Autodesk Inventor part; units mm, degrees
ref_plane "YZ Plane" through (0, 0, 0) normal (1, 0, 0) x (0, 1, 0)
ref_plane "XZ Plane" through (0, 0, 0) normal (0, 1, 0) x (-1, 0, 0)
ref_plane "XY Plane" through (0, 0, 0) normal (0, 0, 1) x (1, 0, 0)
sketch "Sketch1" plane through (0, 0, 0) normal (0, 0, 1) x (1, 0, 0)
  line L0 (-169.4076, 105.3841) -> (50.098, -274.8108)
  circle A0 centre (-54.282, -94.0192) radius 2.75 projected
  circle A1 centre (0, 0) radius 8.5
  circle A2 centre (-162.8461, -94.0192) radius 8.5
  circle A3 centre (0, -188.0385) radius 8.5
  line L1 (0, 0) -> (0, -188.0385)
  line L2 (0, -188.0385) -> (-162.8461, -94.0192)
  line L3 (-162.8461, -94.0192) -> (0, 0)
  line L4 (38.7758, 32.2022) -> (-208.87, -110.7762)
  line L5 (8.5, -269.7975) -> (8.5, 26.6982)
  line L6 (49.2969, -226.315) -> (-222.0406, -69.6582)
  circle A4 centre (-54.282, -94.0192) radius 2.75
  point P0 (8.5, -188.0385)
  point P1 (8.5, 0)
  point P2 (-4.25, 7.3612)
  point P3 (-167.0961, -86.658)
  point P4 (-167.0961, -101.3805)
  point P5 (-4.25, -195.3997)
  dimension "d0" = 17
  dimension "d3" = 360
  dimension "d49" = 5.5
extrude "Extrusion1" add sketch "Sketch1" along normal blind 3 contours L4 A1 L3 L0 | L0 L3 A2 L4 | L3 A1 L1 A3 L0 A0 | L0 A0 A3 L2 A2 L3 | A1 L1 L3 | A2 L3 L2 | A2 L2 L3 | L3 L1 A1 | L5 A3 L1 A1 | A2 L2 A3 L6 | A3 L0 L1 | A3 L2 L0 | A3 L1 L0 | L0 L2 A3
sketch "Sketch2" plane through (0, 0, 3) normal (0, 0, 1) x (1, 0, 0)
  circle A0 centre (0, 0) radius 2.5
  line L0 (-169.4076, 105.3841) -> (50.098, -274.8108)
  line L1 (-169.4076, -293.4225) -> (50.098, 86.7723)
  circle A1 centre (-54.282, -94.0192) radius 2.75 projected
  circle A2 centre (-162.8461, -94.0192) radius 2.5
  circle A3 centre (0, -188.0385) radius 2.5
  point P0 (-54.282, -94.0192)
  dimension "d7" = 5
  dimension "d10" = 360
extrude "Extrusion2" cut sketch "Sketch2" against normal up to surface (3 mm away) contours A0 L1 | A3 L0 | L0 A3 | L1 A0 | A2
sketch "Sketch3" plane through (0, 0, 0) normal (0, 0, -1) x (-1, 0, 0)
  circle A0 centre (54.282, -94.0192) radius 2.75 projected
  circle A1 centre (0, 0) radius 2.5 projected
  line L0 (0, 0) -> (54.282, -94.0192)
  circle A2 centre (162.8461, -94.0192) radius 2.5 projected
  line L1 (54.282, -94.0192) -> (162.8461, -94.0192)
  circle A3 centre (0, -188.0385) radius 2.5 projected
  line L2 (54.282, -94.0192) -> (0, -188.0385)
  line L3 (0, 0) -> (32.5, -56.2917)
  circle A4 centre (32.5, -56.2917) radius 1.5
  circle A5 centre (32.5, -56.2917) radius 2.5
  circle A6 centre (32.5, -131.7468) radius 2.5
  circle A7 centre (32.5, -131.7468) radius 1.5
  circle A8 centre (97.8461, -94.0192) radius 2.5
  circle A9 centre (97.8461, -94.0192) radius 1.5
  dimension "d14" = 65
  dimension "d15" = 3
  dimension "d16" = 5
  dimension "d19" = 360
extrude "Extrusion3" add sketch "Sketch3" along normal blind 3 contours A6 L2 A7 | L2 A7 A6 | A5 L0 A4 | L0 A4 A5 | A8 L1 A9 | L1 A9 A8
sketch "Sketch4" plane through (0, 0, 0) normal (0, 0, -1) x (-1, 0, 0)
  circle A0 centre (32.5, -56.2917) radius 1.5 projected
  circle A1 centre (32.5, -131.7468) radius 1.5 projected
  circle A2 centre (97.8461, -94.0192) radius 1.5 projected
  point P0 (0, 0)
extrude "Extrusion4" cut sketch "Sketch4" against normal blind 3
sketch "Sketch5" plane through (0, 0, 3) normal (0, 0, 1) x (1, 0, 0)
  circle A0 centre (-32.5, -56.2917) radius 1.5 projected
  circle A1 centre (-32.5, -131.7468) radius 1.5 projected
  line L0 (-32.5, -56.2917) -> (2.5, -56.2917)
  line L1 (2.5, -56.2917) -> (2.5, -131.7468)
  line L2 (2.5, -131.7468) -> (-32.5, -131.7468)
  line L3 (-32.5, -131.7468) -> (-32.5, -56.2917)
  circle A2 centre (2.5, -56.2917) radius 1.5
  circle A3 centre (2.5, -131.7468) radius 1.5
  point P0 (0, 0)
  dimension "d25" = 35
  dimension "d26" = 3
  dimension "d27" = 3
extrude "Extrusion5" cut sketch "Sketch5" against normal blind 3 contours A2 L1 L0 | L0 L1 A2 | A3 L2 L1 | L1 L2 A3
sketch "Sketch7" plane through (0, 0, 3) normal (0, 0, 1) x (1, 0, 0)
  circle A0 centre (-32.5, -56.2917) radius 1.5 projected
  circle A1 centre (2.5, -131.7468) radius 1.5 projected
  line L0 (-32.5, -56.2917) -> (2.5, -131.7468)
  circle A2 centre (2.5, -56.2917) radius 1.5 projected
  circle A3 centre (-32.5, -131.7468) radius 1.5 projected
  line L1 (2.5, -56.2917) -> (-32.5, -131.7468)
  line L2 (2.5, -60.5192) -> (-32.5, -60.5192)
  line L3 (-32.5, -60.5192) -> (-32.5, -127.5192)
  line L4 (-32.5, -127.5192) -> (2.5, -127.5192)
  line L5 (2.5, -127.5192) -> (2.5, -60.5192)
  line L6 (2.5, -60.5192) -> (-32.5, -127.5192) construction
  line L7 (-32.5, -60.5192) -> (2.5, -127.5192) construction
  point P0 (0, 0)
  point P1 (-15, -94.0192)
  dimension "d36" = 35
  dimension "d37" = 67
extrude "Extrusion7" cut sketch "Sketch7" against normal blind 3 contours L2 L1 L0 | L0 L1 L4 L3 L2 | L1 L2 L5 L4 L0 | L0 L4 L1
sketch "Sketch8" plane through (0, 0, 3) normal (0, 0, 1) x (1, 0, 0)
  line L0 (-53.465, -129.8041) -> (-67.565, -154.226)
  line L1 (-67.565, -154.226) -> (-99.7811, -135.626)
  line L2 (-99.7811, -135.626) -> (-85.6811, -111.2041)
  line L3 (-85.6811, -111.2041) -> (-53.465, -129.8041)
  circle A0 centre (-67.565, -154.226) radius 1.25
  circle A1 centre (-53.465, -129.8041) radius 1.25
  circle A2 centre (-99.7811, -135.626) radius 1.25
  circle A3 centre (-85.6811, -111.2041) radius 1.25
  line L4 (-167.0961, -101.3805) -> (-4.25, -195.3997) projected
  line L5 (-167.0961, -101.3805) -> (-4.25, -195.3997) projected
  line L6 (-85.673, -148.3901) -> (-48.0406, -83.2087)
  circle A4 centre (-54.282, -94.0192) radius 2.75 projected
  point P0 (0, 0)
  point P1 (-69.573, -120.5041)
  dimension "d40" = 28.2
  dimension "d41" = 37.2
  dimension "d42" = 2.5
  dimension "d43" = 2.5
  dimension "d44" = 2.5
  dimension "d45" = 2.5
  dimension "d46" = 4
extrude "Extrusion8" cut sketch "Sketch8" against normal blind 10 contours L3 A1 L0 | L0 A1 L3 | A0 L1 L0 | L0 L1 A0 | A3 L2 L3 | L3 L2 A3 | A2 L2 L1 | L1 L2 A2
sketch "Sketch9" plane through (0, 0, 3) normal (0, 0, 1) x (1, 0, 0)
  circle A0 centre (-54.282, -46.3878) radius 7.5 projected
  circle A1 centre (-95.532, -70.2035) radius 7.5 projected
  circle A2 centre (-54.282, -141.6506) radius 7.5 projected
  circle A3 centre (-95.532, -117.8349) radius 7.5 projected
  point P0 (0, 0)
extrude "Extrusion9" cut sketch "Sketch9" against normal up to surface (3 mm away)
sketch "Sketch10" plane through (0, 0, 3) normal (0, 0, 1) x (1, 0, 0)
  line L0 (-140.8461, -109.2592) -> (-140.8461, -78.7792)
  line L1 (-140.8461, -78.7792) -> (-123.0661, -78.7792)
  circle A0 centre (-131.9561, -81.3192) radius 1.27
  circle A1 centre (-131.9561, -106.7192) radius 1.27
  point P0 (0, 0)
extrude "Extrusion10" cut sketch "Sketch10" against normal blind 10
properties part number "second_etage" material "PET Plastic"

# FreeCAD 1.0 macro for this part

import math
import FreeCAD as App
import Part
import Sketcher
Q = App.Units.Quantity


def add_polygon(sketch, points):
    """Adds a closed chain of lines whose ends are joined by coincident constraints."""
    first, n = sketch.GeometryCount, len(points)
    for a, b in zip(points, points[1:] + points[:1]):
        sketch.addGeometry(Part.LineSegment(App.Vector(*a, 0), App.Vector(*b, 0)), False)
    for i in range(n):
        sketch.addConstraint(Sketcher.Constraint("Coincident", first + i, 2, first + (i + 1) % n, 1))

doc = App.newDocument("Part")
params = doc.addObject("Spreadsheet::Sheet", "Params")
for row, (alias, value) in enumerate([
    ("sketch1_diameter", "5.5 mm"),
    ("sketch1_radius", "8.5 mm"),
    ("pad1_length", "3 mm"),
    ("sketch2_diameter", "5 mm"),
    ("pocket1_length", "3 mm"),
    ("sketch3_diameter", "5 mm"),
    ("sketch3_diameter2", "3 mm"),
    ("pad2_length", "3 mm"),
    ("sketch4_diameter", "3 mm"),
    ("pocket2_length", "3 mm"),
    ("sketch5_diameter", "3 mm"),
    ("pocket3_length", "3 mm"),
    ("sketch6_width", "35 mm"),
    ("sketch6_height", "67 mm"),
    ("pocket4_length", "3 mm"),
    ("sketch7_diameter", "2.5 mm"),
    ("pocket5_length", "10 mm"),
    ("sketch8_diameter", "15 mm"),
    ("pocket6_length", "3 mm"),
    ("sketch9_diameter", "2.54 mm"),
    ("pocket7_length", "10 mm"),
], start=1):
    params.set(f"A{row}", alias)
    params.set(f"B{row}", "=" + value)
    params.setAlias(f"B{row}", alias)

body = doc.addObject("PartDesign::Body", "Body")

sketch1 = body.newObject("Sketcher::SketchObject", "Sketch")
sketch1.AttachmentSupport = (doc.getObject("XY_Plane"), [""])
sketch1.MapMode = "FlatFace"
sketch1.addGeometry(Part.LineSegment(App.Vector(-4.250005, 7.361224, 0), App.Vector(-167.096092, -86.657999, 0)), False)
sketch1.addGeometry(Part.ArcOfCircle(Part.Circle(App.Vector(-162.8461, -94.0192, 0), App.Vector(0, 0, 1), 8.5), math.radians(120.000005), math.radians(239.999995)), False)
sketch1.addGeometry(Part.LineSegment(App.Vector(-167.096105, -101.380423, 0), App.Vector(-4.249984, -195.399688, 0)), False)
sketch1.addGeometry(Part.ArcOfCircle(Part.Circle(App.Vector(0, -188.0385, 0), App.Vector(0, 0, 1), 8.5), math.radians(-120.000003), math.radians(0)), False)
sketch1.addGeometry(Part.LineSegment(App.Vector(8.5, -188.0385, 0), App.Vector(8.5, 0, 0)), False)
sketch1.addGeometry(Part.ArcOfCircle(Part.Circle(App.Vector(0, 0, 0), App.Vector(0, 0, 1), 8.5), math.radians(0), math.radians(120.000005)), False)
sketch1.addGeometry(Part.Circle(App.Vector(-54.282, -94.0192, 0), App.Vector(0, 0, 1), 2.75), False)
sketch1.addConstraint(Sketcher.Constraint("Tangent", 0, 2, 1, 1))
sketch1.addConstraint(Sketcher.Constraint("Tangent", 1, 2, 2, 1))
sketch1.addConstraint(Sketcher.Constraint("Tangent", 2, 2, 3, 1))
sketch1.addConstraint(Sketcher.Constraint("Tangent", 3, 2, 4, 1))
sketch1.addConstraint(Sketcher.Constraint("Tangent", 4, 2, 5, 1))
sketch1.addConstraint(Sketcher.Constraint("Tangent", 5, 2, 0, 1))
sketch1.addConstraint(Sketcher.Constraint("Vertical", 4))
sketch1.addConstraint(Sketcher.Constraint("Coincident", 5, 3, -1, 1))
sketch1.addConstraint(Sketcher.Constraint("Equal", 1, 3))
sketch1.addConstraint(Sketcher.Constraint("Equal", 3, 5))
sketch1.addConstraint(Sketcher.Constraint("Horizontal", 1, 3, 6, 3))
sketch1.addConstraint(Sketcher.Constraint("Vertical", 0, 2, 1, 2))
sketch1.addConstraint(Sketcher.Constraint("Diameter", 6, 5.5))
sketch1.addConstraint(Sketcher.Constraint("Radius", 1, 8.5))
sketch1.addConstraint(Sketcher.Constraint("Angle", 0, Q("-150 deg")))
sketch1.addConstraint(Sketcher.Constraint("DistanceY", 4, 1, 4, 2, 188.0385))
sketch1.addConstraint(Sketcher.Constraint("DistanceX", 6, 3, -1, 1, 54.282))
sketch1.setExpression("Constraints[12]", "Params.sketch1_diameter")
sketch1.setExpression("Constraints[13]", "Params.sketch1_radius")
pad1 = body.newObject("PartDesign::Pad", "Pad")
pad1.Profile = sketch1
pad1.setExpression("Length", "Params.pad1_length")

sketch2 = body.newObject("Sketcher::SketchObject", "Sketch001")
sketch2.AttachmentSupport = (doc.getObject("XY_Plane"), [""])
sketch2.MapMode = "FlatFace"
sketch2.AttachmentOffset = App.Placement(App.Vector(0, 0, 3), App.Rotation())
sketch2.addGeometry(Part.Circle(App.Vector(0, 0, 0), App.Vector(0, 0, 1), 2.5), False)
sketch2.addGeometry(Part.Circle(App.Vector(0, -188.0385, 0), App.Vector(0, 0, 1), 2.5), False)
sketch2.addGeometry(Part.Circle(App.Vector(-162.8461, -94.0192, 0), App.Vector(0, 0, 1), 2.5), False)
sketch2.addConstraint(Sketcher.Constraint("Coincident", 0, 3, -1, 1))
sketch2.addConstraint(Sketcher.Constraint("Equal", 0, 1))
sketch2.addConstraint(Sketcher.Constraint("Equal", 1, 2))
sketch2.addConstraint(Sketcher.Constraint("PointOnObject", 1, 3, -2))
sketch2.addConstraint(Sketcher.Constraint("Diameter", 0, 5.0))
sketch2.addConstraint(Sketcher.Constraint("DistanceX", 2, 3, -1, 1, 162.846))
sketch2.addConstraint(Sketcher.Constraint("DistanceY", 1, 3, -1, 1, 188.0385))
sketch2.addConstraint(Sketcher.Constraint("DistanceY", 2, 3, -1, 1, 94.0192))
sketch2.setExpression("Constraints[4]", "Params.sketch2_diameter")
pocket1 = body.newObject("PartDesign::Pocket", "Pocket")
pocket1.Profile = sketch2
pocket1.setExpression("Length", "Params.pocket1_length")

sketch3 = body.newObject("Sketcher::SketchObject", "Sketch002")
sketch3.AttachmentSupport = (doc.getObject("XY_Plane"), [""])
sketch3.MapMode = "FlatFace"
sketch3.addGeometry(Part.Circle(App.Vector(-32.5, -131.7468, 0), App.Vector(0, 0, 1), 2.5), False)
sketch3.addGeometry(Part.Circle(App.Vector(-32.5, -131.7468, 0), App.Vector(0, 0, 1), 1.5), False)
sketch3.addGeometry(Part.Circle(App.Vector(-32.5, -56.2917, 0), App.Vector(0, 0, 1), 2.5), False)
sketch3.addGeometry(Part.Circle(App.Vector(-32.5, -56.2917, 0), App.Vector(0, 0, 1), 1.5), False)
sketch3.addGeometry(Part.Circle(App.Vector(-97.8461, -94.0192, 0), App.Vector(0, 0, 1), 2.5), False)
sketch3.addGeometry(Part.Circle(App.Vector(-97.8461, -94.0192, 0), App.Vector(0, 0, 1), 1.5), False)
sketch3.addConstraint(Sketcher.Constraint("Coincident", 1, 3, 0, 3))
sketch3.addConstraint(Sketcher.Constraint("Coincident", 3, 3, 2, 3))
sketch3.addConstraint(Sketcher.Constraint("Coincident", 5, 3, 4, 3))
sketch3.addConstraint(Sketcher.Constraint("Equal", 0, 2))
sketch3.addConstraint(Sketcher.Constraint("Equal", 1, 3))
sketch3.addConstraint(Sketcher.Constraint("Equal", 2, 4))
sketch3.addConstraint(Sketcher.Constraint("Equal", 3, 5))
sketch3.addConstraint(Sketcher.Constraint("Vertical", 1, 3, 2, 3))
sketch3.addConstraint(Sketcher.Constraint("Diameter", 0, 5.0))
sketch3.addConstraint(Sketcher.Constraint("Diameter", 1, 3.0))
sketch3.addConstraint(Sketcher.Constraint("DistanceX", 0, 3, -1, 1, 32.5))
sketch3.addConstraint(Sketcher.Constraint("DistanceX", 4, 3, -1, 1, 97.846))
sketch3.addConstraint(Sketcher.Constraint("DistanceY", 0, 3, 2, 3, 75.455))
sketch3.addConstraint(Sketcher.Constraint("DistanceY", 0, 3, -1, 1, 131.7468))
sketch3.addConstraint(Sketcher.Constraint("DistanceY", 4, 3, -1, 1, 94.0192))
sketch3.setExpression("Constraints[8]", "Params.sketch3_diameter")
sketch3.setExpression("Constraints[9]", "Params.sketch3_diameter2")
pad2 = body.newObject("PartDesign::Pad", "Pad001")
pad2.Profile = sketch3
pad2.setExpression("Length", "Params.pad2_length")
pad2.Reversed = True

sketch4 = body.newObject("Sketcher::SketchObject", "Sketch003")
sketch4.AttachmentSupport = (doc.getObject("XY_Plane"), [""])
sketch4.MapMode = "FlatFace"
sketch4.addGeometry(Part.Circle(App.Vector(-32.5, -56.2917, 0), App.Vector(0, 0, 1), 1.5), False)
sketch4.addGeometry(Part.Circle(App.Vector(-32.5, -131.7468, 0), App.Vector(0, 0, 1), 1.5), False)
sketch4.addGeometry(Part.Circle(App.Vector(-97.8461, -94.0192, 0), App.Vector(0, 0, 1), 1.5), False)
sketch4.addConstraint(Sketcher.Constraint("Equal", 0, 1))
sketch4.addConstraint(Sketcher.Constraint("Equal", 1, 2))
sketch4.addConstraint(Sketcher.Constraint("Vertical", 0, 3, 1, 3))
sketch4.addConstraint(Sketcher.Constraint("Diameter", 0, 3.0))
sketch4.addConstraint(Sketcher.Constraint("DistanceX", 0, 3, -1, 1, 32.5))
sketch4.addConstraint(Sketcher.Constraint("DistanceX", 2, 3, -1, 1, 97.846))
sketch4.addConstraint(Sketcher.Constraint("DistanceY", 1, 3, 0, 3, 75.455))
sketch4.addConstraint(Sketcher.Constraint("DistanceY", 0, 3, -1, 1, 56.2917))
sketch4.addConstraint(Sketcher.Constraint("DistanceY", 2, 3, -1, 1, 94.0192))
sketch4.setExpression("Constraints[3]", "Params.sketch4_diameter")
pocket2 = body.newObject("PartDesign::Pocket", "Pocket001")
pocket2.Profile = sketch4
pocket2.setExpression("Length", "Params.pocket2_length")
pocket2.Reversed = True

sketch5 = body.newObject("Sketcher::SketchObject", "Sketch004")
sketch5.AttachmentSupport = (doc.getObject("XY_Plane"), [""])
sketch5.MapMode = "FlatFace"
sketch5.AttachmentOffset = App.Placement(App.Vector(0, 0, 3), App.Rotation())
sketch5.addGeometry(Part.Circle(App.Vector(2.5, -56.2917, 0), App.Vector(0, 0, 1), 1.5), False)
sketch5.addGeometry(Part.Circle(App.Vector(2.5, -131.7468, 0), App.Vector(0, 0, 1), 1.5), False)
sketch5.addConstraint(Sketcher.Constraint("Equal", 0, 1))
sketch5.addConstraint(Sketcher.Constraint("Vertical", 0, 3, 1, 3))
sketch5.addConstraint(Sketcher.Constraint("Diameter", 0, 3.0))
sketch5.addConstraint(Sketcher.Constraint("DistanceX", -1, 1, 0, 3, 2.5))
sketch5.addConstraint(Sketcher.Constraint("DistanceY", 1, 3, 0, 3, 75.455))
sketch5.addConstraint(Sketcher.Constraint("DistanceY", 0, 3, -1, 1, 56.2917))
sketch5.setExpression("Constraints[2]", "Params.sketch5_diameter")
pocket3 = body.newObject("PartDesign::Pocket", "Pocket002")
pocket3.Profile = sketch5
pocket3.setExpression("Length", "Params.pocket3_length")

sketch6 = body.newObject("Sketcher::SketchObject", "Sketch005")
sketch6.AttachmentSupport = (doc.getObject("XY_Plane"), [""])
sketch6.MapMode = "FlatFace"
sketch6.AttachmentOffset = App.Placement(App.Vector(0, 0, 3), App.Rotation())
add_polygon(sketch6, [(-32.5, -60.5192), (-32.5, -127.5192), (2.5, -127.5192), (2.5, -60.5192)])
sketch6.addConstraint(Sketcher.Constraint("Vertical", 0))
sketch6.addConstraint(Sketcher.Constraint("Horizontal", 1))
sketch6.addConstraint(Sketcher.Constraint("Vertical", 2))
sketch6.addConstraint(Sketcher.Constraint("Horizontal", 3))
sketch6.addConstraint(Sketcher.Constraint("DistanceX", 1, 1, 1, 2, 35.0))
sketch6.addConstraint(Sketcher.Constraint("DistanceY", 0, 2, 0, 1, 67.0))
sketch6.addConstraint(Sketcher.Constraint("DistanceX", 0, 2, -1, 1, 32.5))
sketch6.addConstraint(Sketcher.Constraint("DistanceY", 0, 2, -1, 1, 127.5192))
sketch6.setExpression("Constraints[8]", "Params.sketch6_width")
sketch6.setExpression("Constraints[9]", "Params.sketch6_height")
pocket4 = body.newObject("PartDesign::Pocket", "Pocket003")
pocket4.Profile = sketch6
pocket4.setExpression("Length", "Params.pocket4_length")

sketch7 = body.newObject("Sketcher::SketchObject", "Sketch006")
sketch7.AttachmentSupport = (doc.getObject("XY_Plane"), [""])
sketch7.MapMode = "FlatFace"
sketch7.AttachmentOffset = App.Placement(App.Vector(0, 0, 3), App.Rotation())
sketch7.addGeometry(Part.Circle(App.Vector(-53.465, -129.8041, 0), App.Vector(0, 0, 1), 1.25), False)
sketch7.addGeometry(Part.Circle(App.Vector(-67.565, -154.226, 0), App.Vector(0, 0, 1), 1.25), False)
sketch7.addGeometry(Part.Circle(App.Vector(-85.6811, -111.2041, 0), App.Vector(0, 0, 1), 1.25), False)
sketch7.addGeometry(Part.Circle(App.Vector(-99.7811, -135.626, 0), App.Vector(0, 0, 1), 1.25), False)
sketch7.addConstraint(Sketcher.Constraint("Equal", 0, 1))
sketch7.addConstraint(Sketcher.Constraint("Equal", 1, 2))
sketch7.addConstraint(Sketcher.Constraint("Equal", 2, 3))
sketch7.addConstraint(Sketcher.Constraint("Diameter", 0, 2.5))
sketch7.addConstraint(Sketcher.Constraint("DistanceX", 1, 3, 0, 3, 14.1))
sketch7.addConstraint(Sketcher.Constraint("DistanceY", 0, 3, 2, 3, 18.6))
sketch7.addConstraint(Sketcher.Constraint("DistanceX", 3, 3, 2, 3, 14.1))
sketch7.addConstraint(Sketcher.Constraint("DistanceY", 1, 3, 3, 3, 18.6))
sketch7.addConstraint(Sketcher.Constraint("DistanceX", 0, 3, -1, 1, 53.465))
sketch7.addConstraint(Sketcher.Constraint("DistanceY", 0, 3, -1, 1, 129.804))
sketch7.addConstraint(Sketcher.Constraint("DistanceY", 1, 3, -1, 1, 154.226))
sketch7.addConstraint(Sketcher.Constraint("DistanceX", 2, 3, -1, 1, 85.681))
sketch7.setExpression("Constraints[3]", "Params.sketch7_diameter")
pocket5 = body.newObject("PartDesign::Pocket", "Pocket004")
pocket5.Profile = sketch7
pocket5.setExpression("Length", "Params.pocket5_length")

sketch8 = body.newObject("Sketcher::SketchObject", "Sketch007")
sketch8.AttachmentSupport = (doc.getObject("XY_Plane"), [""])
sketch8.MapMode = "FlatFace"
sketch8.AttachmentOffset = App.Placement(App.Vector(0, 0, 3), App.Rotation())
sketch8.addGeometry(Part.Circle(App.Vector(-54.282, -46.3878, 0), App.Vector(0, 0, 1), 7.5), False)
sketch8.addGeometry(Part.Circle(App.Vector(-95.532, -70.2035, 0), App.Vector(0, 0, 1), 7.5), False)
sketch8.addGeometry(Part.Circle(App.Vector(-54.282, -141.6506, 0), App.Vector(0, 0, 1), 7.5), False)
sketch8.addGeometry(Part.Circle(App.Vector(-95.532, -117.8349, 0), App.Vector(0, 0, 1), 7.5), False)
sketch8.addConstraint(Sketcher.Constraint("Equal", 0, 1))
sketch8.addConstraint(Sketcher.Constraint("Equal", 1, 2))
sketch8.addConstraint(Sketcher.Constraint("Equal", 2, 3))
sketch8.addConstraint(Sketcher.Constraint("Vertical", 0, 3, 2, 3))
sketch8.addConstraint(Sketcher.Constraint("Vertical", 1, 3, 3, 3))
sketch8.addConstraint(Sketcher.Constraint("Diameter", 0, 15.0))
sketch8.addConstraint(Sketcher.Constraint("DistanceX", 1, 3, 0, 3, 41.25))
sketch8.addConstraint(Sketcher.Constraint("DistanceX", 0, 3, -1, 1, 54.282))
sketch8.addConstraint(Sketcher.Constraint("DistanceY", 3, 3, -1, 1, 117.835))
sketch8.addConstraint(Sketcher.Constraint("DistanceY", 2, 3, 1, 3, 71.447))
sketch8.addConstraint(Sketcher.Constraint("DistanceY", 3, 3, 0, 3, 71.447))
sketch8.addConstraint(Sketcher.Constraint("DistanceY", 1, 3, -1, 1, 70.2035))
sketch8.setExpression("Constraints[5]", "Params.sketch8_diameter")
pocket6 = body.newObject("PartDesign::Pocket", "Pocket005")
pocket6.Profile = sketch8
pocket6.setExpression("Length", "Params.pocket6_length")

sketch9 = body.newObject("Sketcher::SketchObject", "Sketch008")
sketch9.AttachmentSupport = (doc.getObject("XY_Plane"), [""])
sketch9.MapMode = "FlatFace"
sketch9.AttachmentOffset = App.Placement(App.Vector(0, 0, 3), App.Rotation())
sketch9.addGeometry(Part.Circle(App.Vector(-131.9561, -81.3192, 0), App.Vector(0, 0, 1), 1.27), False)
sketch9.addGeometry(Part.Circle(App.Vector(-131.9561, -106.7192, 0), App.Vector(0, 0, 1), 1.27), False)
sketch9.addConstraint(Sketcher.Constraint("Equal", 0, 1))
sketch9.addConstraint(Sketcher.Constraint("Vertical", 0, 3, 1, 3))
sketch9.addConstraint(Sketcher.Constraint("Diameter", 0, 2.54))
sketch9.addConstraint(Sketcher.Constraint("DistanceY", 1, 3, 0, 3, 25.4))
sketch9.addConstraint(Sketcher.Constraint("DistanceX", 0, 3, -1, 1, 131.956))
sketch9.addConstraint(Sketcher.Constraint("DistanceY", 0, 3, -1, 1, 81.3192))
sketch9.setExpression("Constraints[2]", "Params.sketch9_diameter")
pocket7 = body.newObject("PartDesign::Pocket", "Pocket006")
pocket7.Profile = sketch9
pocket7.setExpression("Length", "Params.pocket7_length")

doc.recompute()
